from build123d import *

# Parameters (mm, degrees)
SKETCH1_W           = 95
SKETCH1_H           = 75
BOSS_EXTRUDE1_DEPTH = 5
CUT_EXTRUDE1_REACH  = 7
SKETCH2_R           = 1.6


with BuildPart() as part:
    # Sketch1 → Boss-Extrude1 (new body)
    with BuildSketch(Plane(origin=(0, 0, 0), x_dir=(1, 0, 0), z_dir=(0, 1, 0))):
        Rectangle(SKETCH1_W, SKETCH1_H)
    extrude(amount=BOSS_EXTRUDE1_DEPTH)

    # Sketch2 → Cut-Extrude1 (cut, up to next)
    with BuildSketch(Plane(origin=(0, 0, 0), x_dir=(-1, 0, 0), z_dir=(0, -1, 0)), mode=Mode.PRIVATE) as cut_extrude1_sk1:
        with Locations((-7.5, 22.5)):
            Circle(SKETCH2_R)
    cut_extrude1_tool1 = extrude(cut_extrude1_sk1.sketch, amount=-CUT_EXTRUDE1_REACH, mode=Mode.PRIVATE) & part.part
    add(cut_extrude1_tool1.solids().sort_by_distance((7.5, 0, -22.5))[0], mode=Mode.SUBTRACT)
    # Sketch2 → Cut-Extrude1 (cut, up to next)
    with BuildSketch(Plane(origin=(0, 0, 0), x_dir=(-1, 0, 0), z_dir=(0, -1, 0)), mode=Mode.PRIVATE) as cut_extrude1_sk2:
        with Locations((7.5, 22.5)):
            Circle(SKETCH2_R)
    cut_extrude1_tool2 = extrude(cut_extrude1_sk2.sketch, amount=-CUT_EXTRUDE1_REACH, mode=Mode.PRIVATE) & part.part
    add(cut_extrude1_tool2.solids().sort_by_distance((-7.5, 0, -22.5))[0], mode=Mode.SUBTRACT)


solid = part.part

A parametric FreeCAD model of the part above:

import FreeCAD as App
import Part
import Sketcher

V = App.Vector
Q = App.Units.Quantity

doc = App.newDocument("Part")
params = doc.addObject("Spreadsheet::Sheet", "Params")
for row, (alias, value) in enumerate([
    ("sketch1_width", "95 mm"),
    ("sketch1_height", "75 mm"),
    ("pad1_length", "5 mm"),
    ("sketch2_diameter", "3.2 mm"),
    ("sketch3_diameter", "3.2 mm"),
], start=1):
    params.set(f"A{row}", alias)
    params.set(f"B{row}", "=" + value)
    params.setAlias(f"B{row}", alias)

body = doc.addObject("PartDesign::Body", "Body")

sketch1 = body.newObject("Sketcher::SketchObject", "Sketch")
sketch1.AttachmentSupport = (doc.getObject("XZ_Plane"), [""])
sketch1.MapMode = "FlatFace"
sketch1.addGeometry([
    Part.LineSegment(V(-47.5, -37.5, 0), V(-47.5, 37.5, 0)),
    Part.LineSegment(V(-47.5, 37.5, 0), V(47.5, 37.5, 0)),
    Part.LineSegment(V(47.5, 37.5, 0), V(47.5, -37.5, 0)),
    Part.LineSegment(V(47.5, -37.5, 0), V(-47.5, -37.5, 0)),
], False)
sketch1.addConstraint([
    Sketcher.Constraint("Coincident", 0, 2, 1, 1),
    Sketcher.Constraint("Coincident", 1, 2, 2, 1),
    Sketcher.Constraint("Coincident", 2, 2, 3, 1),
    Sketcher.Constraint("Coincident", 3, 2, 0, 1),
    Sketcher.Constraint("Vertical", 0),
    Sketcher.Constraint("Horizontal", 1),
    Sketcher.Constraint("Vertical", 2),
    Sketcher.Constraint("Horizontal", 3),
    Sketcher.Constraint("Symmetric", 0, 2, 2, 2, -1, 1),
    Sketcher.Constraint("DistanceX", 1, 1, 1, 2, Q("95 mm")),
    Sketcher.Constraint("DistanceY", 0, 1, 0, 2, Q("75 mm")),
])
sketch1.setExpression("Constraints[9]", "Params.sketch1_width")
sketch1.setExpression("Constraints[10]", "Params.sketch1_height")
pad1 = body.newObject("PartDesign::Pad", "Pad")
pad1.Profile = sketch1
pad1.setExpression("Length", "Params.pad1_length")
pad1.Reversed = True

sketch2 = body.newObject("Sketcher::SketchObject", "Sketch001")
sketch2.AttachmentSupport = (doc.getObject("XZ_Plane"), [""])
sketch2.MapMode = "FlatFace"
sketch2.addGeometry(Part.Circle(V(7.5, -22.5, 0), V(0, 0, 1), 1.6), False)
sketch2.addConstraint([
    Sketcher.Constraint("Diameter", 0, Q("3.2 mm")),
    Sketcher.Constraint("DistanceX", -1, 1, 0, 3, Q("7.5 mm")),
    Sketcher.Constraint("DistanceY", 0, 3, -1, 1, Q("22.5 mm")),
])
sketch2.setExpression("Constraints[0]", "Params.sketch2_diameter")
pocket1 = body.newObject("PartDesign::Pocket", "Pocket")
pocket1.Profile = sketch2
pocket1.Type = "UpToFirst"

sketch3 = body.newObject("Sketcher::SketchObject", "Sketch002")
sketch3.AttachmentSupport = (doc.getObject("XZ_Plane"), [""])
sketch3.MapMode = "FlatFace"
sketch3.addGeometry(Part.Circle(V(-7.5, -22.5, 0), V(0, 0, 1), 1.6), False)
sketch3.addConstraint([
    Sketcher.Constraint("Diameter", 0, Q("3.2 mm")),
    Sketcher.Constraint("DistanceX", 0, 3, -1, 1, Q("7.5 mm")),
    Sketcher.Constraint("DistanceY", 0, 3, -1, 1, Q("22.5 mm")),
])
sketch3.setExpression("Constraints[0]", "Params.sketch3_diameter")
pocket2 = body.newObject("PartDesign::Pocket", "Pocket001")
pocket2.Profile = sketch3
pocket2.Type = "UpToFirst"

doc.recompute()
